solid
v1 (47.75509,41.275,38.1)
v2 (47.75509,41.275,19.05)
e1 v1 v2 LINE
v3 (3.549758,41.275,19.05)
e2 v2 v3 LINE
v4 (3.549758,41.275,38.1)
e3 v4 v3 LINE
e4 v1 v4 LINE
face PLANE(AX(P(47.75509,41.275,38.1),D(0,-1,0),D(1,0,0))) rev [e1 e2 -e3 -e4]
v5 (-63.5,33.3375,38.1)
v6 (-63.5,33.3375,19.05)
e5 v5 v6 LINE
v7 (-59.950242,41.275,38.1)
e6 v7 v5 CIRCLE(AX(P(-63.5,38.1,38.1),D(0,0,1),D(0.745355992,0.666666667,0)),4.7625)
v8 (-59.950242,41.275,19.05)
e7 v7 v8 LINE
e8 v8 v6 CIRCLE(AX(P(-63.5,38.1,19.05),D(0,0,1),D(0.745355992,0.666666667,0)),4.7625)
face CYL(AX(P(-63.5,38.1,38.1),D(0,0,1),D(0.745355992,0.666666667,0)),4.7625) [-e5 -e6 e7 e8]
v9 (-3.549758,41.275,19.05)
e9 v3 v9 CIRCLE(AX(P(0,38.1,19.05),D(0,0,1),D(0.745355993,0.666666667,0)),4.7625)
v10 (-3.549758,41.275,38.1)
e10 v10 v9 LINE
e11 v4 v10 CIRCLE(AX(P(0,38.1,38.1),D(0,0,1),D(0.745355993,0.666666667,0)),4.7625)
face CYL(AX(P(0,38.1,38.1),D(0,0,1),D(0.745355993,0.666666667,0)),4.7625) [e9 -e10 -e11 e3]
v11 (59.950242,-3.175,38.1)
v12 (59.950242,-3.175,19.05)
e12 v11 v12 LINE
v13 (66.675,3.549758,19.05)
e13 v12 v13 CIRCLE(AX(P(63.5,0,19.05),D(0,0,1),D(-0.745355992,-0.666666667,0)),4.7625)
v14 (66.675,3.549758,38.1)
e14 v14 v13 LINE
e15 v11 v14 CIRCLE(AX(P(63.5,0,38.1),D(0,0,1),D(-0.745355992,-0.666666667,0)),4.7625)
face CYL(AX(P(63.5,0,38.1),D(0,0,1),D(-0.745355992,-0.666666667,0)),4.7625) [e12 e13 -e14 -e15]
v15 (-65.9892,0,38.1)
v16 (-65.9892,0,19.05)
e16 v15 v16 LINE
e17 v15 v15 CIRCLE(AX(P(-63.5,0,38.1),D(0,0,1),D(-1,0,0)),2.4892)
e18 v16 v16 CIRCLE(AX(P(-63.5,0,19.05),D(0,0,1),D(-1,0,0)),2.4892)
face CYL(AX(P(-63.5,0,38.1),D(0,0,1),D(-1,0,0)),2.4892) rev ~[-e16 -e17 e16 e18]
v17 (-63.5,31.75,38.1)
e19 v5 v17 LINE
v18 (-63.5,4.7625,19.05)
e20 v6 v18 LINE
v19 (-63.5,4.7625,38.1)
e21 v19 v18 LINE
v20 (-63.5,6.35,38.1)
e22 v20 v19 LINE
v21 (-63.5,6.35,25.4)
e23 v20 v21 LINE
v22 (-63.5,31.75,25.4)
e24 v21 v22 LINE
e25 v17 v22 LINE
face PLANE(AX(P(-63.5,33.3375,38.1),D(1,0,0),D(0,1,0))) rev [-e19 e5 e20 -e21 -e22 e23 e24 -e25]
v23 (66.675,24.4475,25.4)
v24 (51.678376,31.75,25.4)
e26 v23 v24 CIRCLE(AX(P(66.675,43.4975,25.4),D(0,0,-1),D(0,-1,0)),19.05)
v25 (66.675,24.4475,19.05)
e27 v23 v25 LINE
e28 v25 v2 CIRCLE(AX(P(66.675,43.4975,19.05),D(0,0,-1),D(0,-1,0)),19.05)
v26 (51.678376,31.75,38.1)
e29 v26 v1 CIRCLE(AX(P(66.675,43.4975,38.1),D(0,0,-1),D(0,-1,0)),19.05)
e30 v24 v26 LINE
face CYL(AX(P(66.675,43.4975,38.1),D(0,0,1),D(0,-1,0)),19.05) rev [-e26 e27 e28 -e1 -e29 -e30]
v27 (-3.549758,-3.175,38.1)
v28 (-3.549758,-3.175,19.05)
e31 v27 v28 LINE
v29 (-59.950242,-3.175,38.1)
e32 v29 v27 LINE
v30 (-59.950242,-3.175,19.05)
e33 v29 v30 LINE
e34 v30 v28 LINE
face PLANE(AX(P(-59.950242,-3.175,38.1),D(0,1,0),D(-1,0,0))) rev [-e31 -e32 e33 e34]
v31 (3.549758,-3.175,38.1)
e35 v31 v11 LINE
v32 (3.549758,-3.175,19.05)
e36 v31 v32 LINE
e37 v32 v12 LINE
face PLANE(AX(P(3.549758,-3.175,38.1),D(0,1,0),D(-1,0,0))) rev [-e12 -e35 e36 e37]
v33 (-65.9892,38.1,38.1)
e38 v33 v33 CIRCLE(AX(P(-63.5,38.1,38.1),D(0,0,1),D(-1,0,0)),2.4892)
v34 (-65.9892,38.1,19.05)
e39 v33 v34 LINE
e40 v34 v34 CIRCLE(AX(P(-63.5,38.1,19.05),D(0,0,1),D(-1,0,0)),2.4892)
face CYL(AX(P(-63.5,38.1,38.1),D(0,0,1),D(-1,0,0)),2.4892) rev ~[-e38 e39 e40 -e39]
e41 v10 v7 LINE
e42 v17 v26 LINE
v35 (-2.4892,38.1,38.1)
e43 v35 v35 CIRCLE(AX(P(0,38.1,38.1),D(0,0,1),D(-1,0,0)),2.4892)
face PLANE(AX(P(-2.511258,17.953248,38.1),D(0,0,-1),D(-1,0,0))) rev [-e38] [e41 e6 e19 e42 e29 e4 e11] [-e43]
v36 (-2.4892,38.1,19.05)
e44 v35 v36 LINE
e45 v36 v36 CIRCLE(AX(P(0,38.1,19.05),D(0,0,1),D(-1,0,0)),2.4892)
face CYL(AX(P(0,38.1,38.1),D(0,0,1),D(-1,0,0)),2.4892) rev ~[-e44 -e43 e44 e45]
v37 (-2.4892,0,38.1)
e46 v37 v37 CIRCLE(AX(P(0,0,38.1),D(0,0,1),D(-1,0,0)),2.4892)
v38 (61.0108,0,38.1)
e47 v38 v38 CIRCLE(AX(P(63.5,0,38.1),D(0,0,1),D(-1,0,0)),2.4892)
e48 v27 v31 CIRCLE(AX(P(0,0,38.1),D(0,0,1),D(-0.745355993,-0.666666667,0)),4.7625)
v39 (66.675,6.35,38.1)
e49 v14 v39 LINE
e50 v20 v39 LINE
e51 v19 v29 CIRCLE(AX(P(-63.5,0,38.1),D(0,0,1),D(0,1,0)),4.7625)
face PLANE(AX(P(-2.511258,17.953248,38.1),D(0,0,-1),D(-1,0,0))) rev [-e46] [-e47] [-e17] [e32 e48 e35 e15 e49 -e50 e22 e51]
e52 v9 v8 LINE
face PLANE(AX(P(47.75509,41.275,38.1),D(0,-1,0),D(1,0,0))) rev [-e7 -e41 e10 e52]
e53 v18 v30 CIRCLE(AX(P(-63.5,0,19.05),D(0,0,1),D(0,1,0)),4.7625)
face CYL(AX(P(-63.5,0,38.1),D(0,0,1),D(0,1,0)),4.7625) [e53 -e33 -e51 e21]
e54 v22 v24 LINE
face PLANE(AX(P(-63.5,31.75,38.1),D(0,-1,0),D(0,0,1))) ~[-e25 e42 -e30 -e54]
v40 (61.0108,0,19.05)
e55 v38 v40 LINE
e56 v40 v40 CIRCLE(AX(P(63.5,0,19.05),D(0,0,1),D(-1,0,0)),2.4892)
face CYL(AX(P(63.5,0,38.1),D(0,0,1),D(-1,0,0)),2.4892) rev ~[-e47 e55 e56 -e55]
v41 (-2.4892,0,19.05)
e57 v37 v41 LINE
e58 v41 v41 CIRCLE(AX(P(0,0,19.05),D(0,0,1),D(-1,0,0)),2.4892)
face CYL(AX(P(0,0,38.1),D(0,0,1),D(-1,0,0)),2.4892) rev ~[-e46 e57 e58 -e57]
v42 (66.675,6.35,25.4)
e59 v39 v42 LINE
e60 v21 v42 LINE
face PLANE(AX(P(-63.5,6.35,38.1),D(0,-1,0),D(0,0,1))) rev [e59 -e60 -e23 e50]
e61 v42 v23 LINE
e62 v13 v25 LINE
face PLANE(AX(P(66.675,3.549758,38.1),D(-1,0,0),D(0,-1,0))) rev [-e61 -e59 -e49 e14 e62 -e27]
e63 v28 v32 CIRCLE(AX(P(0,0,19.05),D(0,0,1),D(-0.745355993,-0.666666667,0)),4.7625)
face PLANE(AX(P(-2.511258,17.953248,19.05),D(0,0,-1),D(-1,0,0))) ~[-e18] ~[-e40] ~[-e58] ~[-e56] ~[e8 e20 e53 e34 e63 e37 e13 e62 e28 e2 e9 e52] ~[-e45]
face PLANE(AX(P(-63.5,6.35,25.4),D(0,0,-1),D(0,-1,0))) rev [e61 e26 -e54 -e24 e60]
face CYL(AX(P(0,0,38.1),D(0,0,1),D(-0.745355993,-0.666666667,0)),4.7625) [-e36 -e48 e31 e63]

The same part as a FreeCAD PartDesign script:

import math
import FreeCAD as App
import Part
import Sketcher
from FreeCAD import Vector
Q = App.Units.Quantity


def add_polygon(sketch, points):
    """Adds a closed chain of lines whose ends are joined by coincident constraints."""
    first, n = sketch.GeometryCount, len(points)
    for a, b in zip(points, points[1:] + points[:1]):
        sketch.addGeometry(Part.LineSegment(App.Vector(*a, 0), App.Vector(*b, 0)), False)
    for i in range(n):
        sketch.addConstraint(Sketcher.Constraint("Coincident", first + i, 2, first + (i + 1) % n, 1))

doc = App.newDocument("Part")
body = doc.addObject("PartDesign::Body", "Body")

sketch1 = doc.addObject("Sketcher::SketchObject", "Sketch")
body.addObject(sketch1)
sketch1.AttachmentSupport = (doc.XY_Plane, [""])
sketch1.MapMode = "FlatFace"
sketch1.addGeometry(Part.ArcOfCircle(Part.Circle(Vector(0, 0, 0), Vector(0, 0, 1), 4.8), math.radians(-138), math.radians(-42)), False)
sketch1.addGeometry(Part.LineSegment(Vector(3.5, -3.2, 0), Vector(60, -3.2, 0)), False)
sketch1.addGeometry(Part.ArcOfCircle(Part.Circle(Vector(63.5, 0, 0), Vector(0, 0, 1), 4.8), math.radians(-138), math.radians(48)), False)
sketch1.addGeometry(Part.LineSegment(Vector(66.7, 3.5, 0), Vector(66.7, 24.4, 0)), False)
sketch1.addGeometry(Part.ArcOfCircle(Part.Circle(Vector(66.7, 43.5, 0), Vector(0, 0, 1), 19.1), math.radians(-173), math.radians(-90)), False)
sketch1.addGeometry(Part.LineSegment(Vector(47.8, 41.3, 0), Vector(3.5, 41.3, 0)), False)
sketch1.addGeometry(Part.ArcOfCircle(Part.Circle(Vector(0, 38.1, 0), Vector(0, 0, 1), 4.8), math.radians(42), math.radians(138)), False)
sketch1.addGeometry(Part.LineSegment(Vector(-3.5, 41.3, 0), Vector(-60, 41.3, 0)), False)
sketch1.addGeometry(Part.ArcOfCircle(Part.Circle(Vector(-63.5, 38.1, 0), Vector(0, 0, 1), 4.8), math.radians(42), math.radians(270)), False)
sketch1.addGeometry(Part.LineSegment(Vector(-63.5, 33.3, 0), Vector(-63.5, 4.8, 0)), False)
sketch1.addGeometry(Part.ArcOfCircle(Part.Circle(Vector(-63.5, 0, 0), Vector(0, 0, 1), 4.8), math.radians(90), math.radians(318)), False)
sketch1.addGeometry(Part.LineSegment(Vector(-60, -3.2, 0), Vector(-3.5, -3.2, 0)), False)
sketch1.addGeometry(Part.Circle(Vector(-63.5, 0, 0), Vector(0, 0, 1), 2.5), False)
sketch1.addGeometry(Part.Circle(Vector(0, 0, 0), Vector(0, 0, 1), 2.5), False)
sketch1.addGeometry(Part.Circle(Vector(63.5, 0, 0), Vector(0, 0, 1), 2.5), False)
sketch1.addGeometry(Part.Circle(Vector(-63.5, 38.1, 0), Vector(0, 0, 1), 2.5), False)
sketch1.addGeometry(Part.Circle(Vector(0, 38.1, 0), Vector(0, 0, 1), 2.5), False)
sketch1.addConstraint(Sketcher.Constraint("Coincident", 0, 2, 1, 1))
sketch1.addConstraint(Sketcher.Constraint("Coincident", 1, 2, 2, 1))
sketch1.addConstraint(Sketcher.Constraint("Coincident", 2, 2, 3, 1))
sketch1.addConstraint(Sketcher.Constraint("Coincident", 3, 2, 4, 2))
sketch1.addConstraint(Sketcher.Constraint("Coincident", 4, 1, 5, 1))
sketch1.addConstraint(Sketcher.Constraint("Coincident", 5, 2, 6, 1))
sketch1.addConstraint(Sketcher.Constraint("Coincident", 6, 2, 7, 1))
sketch1.addConstraint(Sketcher.Constraint("Coincident", 7, 2, 8, 1))
sketch1.addConstraint(Sketcher.Constraint("Coincident", 8, 2, 9, 1))
sketch1.addConstraint(Sketcher.Constraint("Coincident", 9, 2, 10, 1))
sketch1.addConstraint(Sketcher.Constraint("Coincident", 10, 2, 11, 1))
sketch1.addConstraint(Sketcher.Constraint("Coincident", 11, 2, 0, 1))
sketch1.addConstraint(Sketcher.Constraint("Horizontal", 1))
sketch1.addConstraint(Sketcher.Constraint("Vertical", 3))
sketch1.addConstraint(Sketcher.Constraint("Horizontal", 5))
sketch1.addConstraint(Sketcher.Constraint("Horizontal", 7))
sketch1.addConstraint(Sketcher.Constraint("Vertical", 9))
sketch1.addConstraint(Sketcher.Constraint("Horizontal", 11))
sketch1.addConstraint(Sketcher.Constraint("Coincident", 0, 3, -1, 1))
sketch1.addConstraint(Sketcher.Constraint("Coincident", 13, 3, -1, 1))
sketch1.addConstraint(Sketcher.Constraint("Coincident", 12, 3, 10, 3))
sketch1.addConstraint(Sketcher.Constraint("Coincident", 14, 3, 2, 3))
sketch1.addConstraint(Sketcher.Constraint("Coincident", 15, 3, 8, 3))
sketch1.addConstraint(Sketcher.Constraint("Coincident", 16, 3, 6, 3))
sketch1.addConstraint(Sketcher.Constraint("Equal", 0, 2))
sketch1.addConstraint(Sketcher.Constraint("Equal", 2, 6))
sketch1.addConstraint(Sketcher.Constraint("Equal", 6, 8))
sketch1.addConstraint(Sketcher.Constraint("Equal", 8, 10))
sketch1.addConstraint(Sketcher.Constraint("Equal", 12, 13))
sketch1.addConstraint(Sketcher.Constraint("Equal", 13, 14))
sketch1.addConstraint(Sketcher.Constraint("Equal", 14, 15))
sketch1.addConstraint(Sketcher.Constraint("Equal", 15, 16))
sketch1.addConstraint(Sketcher.Constraint("Symmetric", 2, 3, 10, 3, -1, 1))
sketch1.addConstraint(Sketcher.Constraint("Symmetric", 5, 2, 6, 2, -2))
sketch1.addConstraint(Sketcher.Constraint("Symmetric", 1, 2, 10, 2, -2))
sketch1.addConstraint(Sketcher.Constraint("Horizontal", 6, 3, 8, 3))
sketch1.addConstraint(Sketcher.Constraint("Vertical", 8, 3, 10, 3))
sketch1.addConstraint(Sketcher.Constraint("Vertical", 4, 3, 2, 2))
sketch1.addConstraint(Sketcher.Constraint("Vertical", 0, 2, 5, 2))
sketch1.addConstraint(Sketcher.Constraint("Vertical", 15, 3, 8, 2))
sketch1.addConstraint(Sketcher.Constraint("Radius", 4, Q("0.75 in")))
sketch1.addConstraint(Sketcher.Constraint("Diameter", 12, Q("0.196 in")))
sketch1.addConstraint(Sketcher.Constraint("Radius", 0, Q("0.1875 in")))
sketch1.addConstraint(Sketcher.Constraint("DistanceX", 8, 3, 2, 3, Q("5 in")))
sketch1.addConstraint(Sketcher.Constraint("DistanceY", -1, 1, 6, 3, Q("1.5 in")))
sketch1.addConstraint(Sketcher.Constraint("DistanceX", -1, 1, 4, 3, Q("2.625 in")))
sketch1.addConstraint(Sketcher.Constraint("DistanceY", 0, 2, -1, 1, Q("0.125 in")))
sketch1.addConstraint(Sketcher.Constraint("DistanceY", -1, 1, 4, 3, Q("1.7125 in")))
pad1 = doc.addObject("PartDesign::Pad", "Pad")
body.addObject(pad1)
pad1.Profile = sketch1
pad1.Length = Q("0.75 in")

sketch2 = doc.addObject("Sketcher::SketchObject", "Sketch001")
body.addObject(sketch2)
sketch2.AttachmentSupport = (doc.YZ_Plane, [""])
sketch2.MapMode = "FlatFace"
sketch2.AttachmentOffset = App.Placement(Vector(0, 0, -2.5 * 25.4), App.Rotation())
add_polygon(sketch2, [(32, 0), (6, 0), (6, 13), (32, 13)])
sketch2.addConstraint(Sketcher.Constraint("Horizontal", 0))
sketch2.addConstraint(Sketcher.Constraint("Vertical", 1))
sketch2.addConstraint(Sketcher.Constraint("Horizontal", 2))
sketch2.addConstraint(Sketcher.Constraint("Vertical", 3))
sketch2.addConstraint(Sketcher.Constraint("PointOnObject", 0, 2, -1))
sketch2.addConstraint(Sketcher.Constraint("DistanceX", 0, 2, 0, 1, Q("1 in")))
sketch2.addConstraint(Sketcher.Constraint("DistanceY", 1, 1, 1, 2, Q("0.5 in")))
sketch2.addConstraint(Sketcher.Constraint("DistanceX", -1, 1, 0, 2, Q("0.25 in")))
pocket1 = doc.addObject("PartDesign::Pocket", "Pocket")
body.addObject(pocket1)
pocket1.Profile = sketch2
pocket1.Type = "ThroughAll"
pocket1.Reversed = True
body2 = doc.addObject("PartDesign::Body", "Body001")
doc.recompute()

mirroring = doc.addObject("Part::Mirroring", "Mirroring")
mirroring.Source = body
mirroring.Base = Vector(0, 0, 19.05)
mirroring.Normal = Vector(0, 0, 1)
body2.BaseFeature = mirroring
doc.recompute()
body.Visibility = False
mirroring.Visibility = False

doc.recompute()
